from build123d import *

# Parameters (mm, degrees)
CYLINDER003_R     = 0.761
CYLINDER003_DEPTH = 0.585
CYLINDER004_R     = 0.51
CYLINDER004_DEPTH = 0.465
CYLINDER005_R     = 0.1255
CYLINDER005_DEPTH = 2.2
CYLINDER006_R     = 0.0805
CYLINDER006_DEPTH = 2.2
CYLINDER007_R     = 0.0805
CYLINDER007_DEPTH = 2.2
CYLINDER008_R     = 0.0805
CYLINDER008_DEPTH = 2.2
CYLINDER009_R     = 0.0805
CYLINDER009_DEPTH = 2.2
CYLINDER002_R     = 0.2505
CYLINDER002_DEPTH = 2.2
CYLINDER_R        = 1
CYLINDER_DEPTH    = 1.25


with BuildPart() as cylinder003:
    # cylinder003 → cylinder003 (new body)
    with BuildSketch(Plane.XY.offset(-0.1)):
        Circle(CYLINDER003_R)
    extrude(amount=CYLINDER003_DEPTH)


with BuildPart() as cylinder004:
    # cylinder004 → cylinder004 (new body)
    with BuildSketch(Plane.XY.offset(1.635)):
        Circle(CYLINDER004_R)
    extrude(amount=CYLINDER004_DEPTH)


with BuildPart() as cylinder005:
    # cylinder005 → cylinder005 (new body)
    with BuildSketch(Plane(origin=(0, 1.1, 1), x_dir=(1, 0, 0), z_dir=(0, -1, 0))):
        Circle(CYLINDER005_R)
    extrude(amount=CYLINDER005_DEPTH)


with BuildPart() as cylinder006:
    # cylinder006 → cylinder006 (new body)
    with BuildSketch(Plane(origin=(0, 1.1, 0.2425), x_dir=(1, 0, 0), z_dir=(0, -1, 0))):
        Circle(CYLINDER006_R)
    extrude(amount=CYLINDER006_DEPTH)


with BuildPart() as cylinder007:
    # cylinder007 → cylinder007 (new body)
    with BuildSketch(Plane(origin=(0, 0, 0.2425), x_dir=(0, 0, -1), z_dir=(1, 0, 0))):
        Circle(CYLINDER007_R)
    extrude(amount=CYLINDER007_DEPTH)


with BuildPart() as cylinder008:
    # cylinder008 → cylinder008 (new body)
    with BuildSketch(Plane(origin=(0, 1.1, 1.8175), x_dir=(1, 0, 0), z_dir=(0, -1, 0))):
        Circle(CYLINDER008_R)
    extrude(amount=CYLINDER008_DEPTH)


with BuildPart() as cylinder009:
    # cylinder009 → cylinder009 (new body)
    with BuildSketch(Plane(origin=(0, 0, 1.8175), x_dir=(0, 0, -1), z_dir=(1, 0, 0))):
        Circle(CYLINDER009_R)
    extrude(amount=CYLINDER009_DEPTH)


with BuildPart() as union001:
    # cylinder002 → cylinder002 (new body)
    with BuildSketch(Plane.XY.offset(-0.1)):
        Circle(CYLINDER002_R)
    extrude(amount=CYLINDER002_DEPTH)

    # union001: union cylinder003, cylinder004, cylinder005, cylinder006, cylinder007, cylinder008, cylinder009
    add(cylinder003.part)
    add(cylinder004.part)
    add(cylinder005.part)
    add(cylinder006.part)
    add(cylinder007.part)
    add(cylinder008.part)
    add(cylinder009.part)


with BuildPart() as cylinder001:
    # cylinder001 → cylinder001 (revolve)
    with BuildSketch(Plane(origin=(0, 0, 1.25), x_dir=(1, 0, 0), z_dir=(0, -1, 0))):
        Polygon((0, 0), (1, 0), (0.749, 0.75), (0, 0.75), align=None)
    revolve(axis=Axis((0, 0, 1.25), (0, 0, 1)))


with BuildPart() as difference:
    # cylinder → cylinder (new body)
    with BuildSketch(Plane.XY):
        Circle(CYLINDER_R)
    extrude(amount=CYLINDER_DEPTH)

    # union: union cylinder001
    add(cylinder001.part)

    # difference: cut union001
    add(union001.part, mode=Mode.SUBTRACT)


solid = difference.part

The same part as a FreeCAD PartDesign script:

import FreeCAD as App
import Part
import Sketcher
from FreeCAD import Vector

doc = App.newDocument("Part")
body = doc.addObject("PartDesign::Body", "Body")

# Sketch on XY plane
sketch1 = body.newObject("Sketcher::SketchObject", "Sketch")
sketch1.AttachmentSupport = (doc.getObject("XY_Plane"), [""])
sketch1.MapMode = "FlatFace"
sketch1.AttachmentOffset = App.Placement(Vector(0, 0, -0.1), App.Rotation())
sketch1.addGeometry(Part.Circle(Vector(0, 0, 0), Vector(0, 0, 1), 0.8), False)
sketch1.addConstraint(Sketcher.Constraint("Coincident", 0, 3, -1, 1))
sketch1.addConstraint(Sketcher.Constraint("Diameter", 0, 1.522))
pad1 = body.newObject("PartDesign::Pad", "Pad")
pad1.Profile = sketch1
pad1.Length = 0.585
body2 = doc.addObject("PartDesign::Body", "Body001")

# Sketch on XY plane
sketch2 = body2.newObject("Sketcher::SketchObject", "Sketch001")
sketch2.AttachmentSupport = (doc.getObject("XY_Plane001"), [""])
sketch2.MapMode = "FlatFace"
sketch2.AttachmentOffset = App.Placement(Vector(0, 0, 1.635), App.Rotation())
sketch2.addGeometry(Part.Circle(Vector(0, 0, 0), Vector(0, 0, 1), 0.5), False)
sketch2.addConstraint(Sketcher.Constraint("Coincident", 0, 3, -1, 1))
sketch2.addConstraint(Sketcher.Constraint("Diameter", 0, 1.02))
pad2 = body2.newObject("PartDesign::Pad", "Pad001")
pad2.Profile = sketch2
pad2.Length = 0.465
body3 = doc.addObject("PartDesign::Body", "Body002")

# Sketch on XZ plane
sketch3 = body3.newObject("Sketcher::SketchObject", "Sketch002")
sketch3.AttachmentSupport = (doc.getObject("XZ_Plane002"), [""])
sketch3.MapMode = "FlatFace"
sketch3.AttachmentOffset = App.Placement(Vector(0, 0, -1.1), App.Rotation())
sketch3.addGeometry(Part.Circle(Vector(0, 1, 0), Vector(0, 0, 1), 0.13), False)
sketch3.addConstraint(Sketcher.Constraint("PointOnObject", 0, 3, -2))
sketch3.addConstraint(Sketcher.Constraint("Diameter", 0, 0.251))
sketch3.addConstraint(Sketcher.Constraint("DistanceY", -1, 1, 0, 3, 1.0))
pad3 = body3.newObject("PartDesign::Pad", "Pad002")
pad3.Profile = sketch3
pad3.Length = 2.2
body4 = doc.addObject("PartDesign::Body", "Body003")

# Sketch on XZ plane
sketch4 = body4.newObject("Sketcher::SketchObject", "Sketch003")
sketch4.AttachmentSupport = (doc.getObject("XZ_Plane003"), [""])
sketch4.MapMode = "FlatFace"
sketch4.AttachmentOffset = App.Placement(Vector(0, 0, -1.1), App.Rotation())
sketch4.addGeometry(Part.Circle(Vector(0, 0.24, 0), Vector(0, 0, 1), 0.08), False)
sketch4.addConstraint(Sketcher.Constraint("PointOnObject", 0, 3, -2))
sketch4.addConstraint(Sketcher.Constraint("Diameter", 0, 0.161))
sketch4.addConstraint(Sketcher.Constraint("DistanceY", -1, 1, 0, 3, 0.2425))
pad4 = body4.newObject("PartDesign::Pad", "Pad003")
pad4.Profile = sketch4
pad4.Length = 2.2
body5 = doc.addObject("PartDesign::Body", "Body004")

# Sketch on YZ plane
sketch5 = body5.newObject("Sketcher::SketchObject", "Sketch004")
sketch5.AttachmentSupport = (doc.getObject("YZ_Plane004"), [""])
sketch5.MapMode = "FlatFace"
sketch5.addGeometry(Part.Circle(Vector(0, 0.24, 0), Vector(0, 0, 1), 0.08), False)
sketch5.addConstraint(Sketcher.Constraint("PointOnObject", 0, 3, -2))
sketch5.addConstraint(Sketcher.Constraint("Diameter", 0, 0.161))
sketch5.addConstraint(Sketcher.Constraint("DistanceY", -1, 1, 0, 3, 0.2425))
pad5 = body5.newObject("PartDesign::Pad", "Pad004")
pad5.Profile = sketch5
pad5.Length = 2.2
body6 = doc.addObject("PartDesign::Body", "Body005")

# Sketch on XZ plane
sketch6 = body6.newObject("Sketcher::SketchObject", "Sketch005")
sketch6.AttachmentSupport = (doc.getObject("XZ_Plane005"), [""])
sketch6.MapMode = "FlatFace"
sketch6.AttachmentOffset = App.Placement(Vector(0, 0, -1.1), App.Rotation())
sketch6.addGeometry(Part.Circle(Vector(0, 1.82, 0), Vector(0, 0, 1), 0.08), False)
sketch6.addConstraint(Sketcher.Constraint("PointOnObject", 0, 3, -2))
sketch6.addConstraint(Sketcher.Constraint("Diameter", 0, 0.161))
sketch6.addConstraint(Sketcher.Constraint("DistanceY", -1, 1, 0, 3, 1.8175))
pad6 = body6.newObject("PartDesign::Pad", "Pad005")
pad6.Profile = sketch6
pad6.Length = 2.2
body7 = doc.addObject("PartDesign::Body", "Body006")

# Sketch on YZ plane
sketch7 = body7.newObject("Sketcher::SketchObject", "Sketch006")
sketch7.AttachmentSupport = (doc.getObject("YZ_Plane006"), [""])
sketch7.MapMode = "FlatFace"
sketch7.addGeometry(Part.Circle(Vector(0, 1.82, 0), Vector(0, 0, 1), 0.08), False)
sketch7.addConstraint(Sketcher.Constraint("PointOnObject", 0, 3, -2))
sketch7.addConstraint(Sketcher.Constraint("Diameter", 0, 0.161))
sketch7.addConstraint(Sketcher.Constraint("DistanceY", -1, 1, 0, 3, 1.8175))
pad7 = body7.newObject("PartDesign::Pad", "Pad006")
pad7.Profile = sketch7
pad7.Length = 2.2
body8 = doc.addObject("PartDesign::Body", "Body007")

# Sketch on XY plane
sketch8 = body8.newObject("Sketcher::SketchObject", "Sketch007")
sketch8.AttachmentSupport = (doc.getObject("XY_Plane007"), [""])
sketch8.MapMode = "FlatFace"
sketch8.AttachmentOffset = App.Placement(Vector(0, 0, -0.1), App.Rotation())
sketch8.addGeometry(Part.Circle(Vector(0, 0, 0), Vector(0, 0, 1), 0.25), False)
sketch8.addConstraint(Sketcher.Constraint("Coincident", 0, 3, -1, 1))
sketch8.addConstraint(Sketcher.Constraint("Diameter", 0, 0.501))
pad8 = body8.newObject("PartDesign::Pad", "Pad007")
pad8.Profile = sketch8
pad8.Length = 2.2
doc.recompute()

boolean = body8.newObject("PartDesign::Boolean", "Boolean")
boolean.Type = "Fuse"
boolean.addObjects([body])
doc.recompute()

boolean2 = body8.newObject("PartDesign::Boolean", "Boolean001")
boolean2.Type = "Fuse"
boolean2.addObjects([body2])
doc.recompute()

boolean3 = body8.newObject("PartDesign::Boolean", "Boolean002")
boolean3.Type = "Fuse"
boolean3.addObjects([body3])
doc.recompute()

boolean4 = body8.newObject("PartDesign::Boolean", "Boolean003")
boolean4.Type = "Fuse"
boolean4.addObjects([body4])
doc.recompute()

boolean5 = body8.newObject("PartDesign::Boolean", "Boolean004")
boolean5.Type = "Fuse"
boolean5.addObjects([body5])
doc.recompute()

boolean6 = body8.newObject("PartDesign::Boolean", "Boolean005")
boolean6.Type = "Fuse"
boolean6.addObjects([body6])
doc.recompute()

boolean7 = body8.newObject("PartDesign::Boolean", "Boolean006")
boolean7.Type = "Fuse"
boolean7.addObjects([body7])
body9 = doc.addObject("PartDesign::Body", "Body008")

# Sketch on XZ plane
sketch9 = body9.newObject("Sketcher::SketchObject", "Sketch008")
sketch9.AttachmentSupport = (doc.getObject("XZ_Plane008"), [""])
sketch9.MapMode = "FlatFace"
sketch9.addGeometry(Part.LineSegment(Vector(0, 1.2, 0), Vector(1, 1.2, 0)), False)
sketch9.addGeometry(Part.LineSegment(Vector(1, 1.2, 0), Vector(0.7, 2, 0)), False)
sketch9.addGeometry(Part.LineSegment(Vector(0.7, 2, 0), Vector(0, 2, 0)), False)
sketch9.addGeometry(Part.LineSegment(Vector(0, 2, 0), Vector(0, 1.2, 0)), False)
sketch9.addConstraint(Sketcher.Constraint("Coincident", 0, 2, 1, 1))
sketch9.addConstraint(Sketcher.Constraint("Coincident", 1, 2, 2, 1))
sketch9.addConstraint(Sketcher.Constraint("Coincident", 2, 2, 3, 1))
sketch9.addConstraint(Sketcher.Constraint("Coincident", 3, 2, 0, 1))
sketch9.addConstraint(Sketcher.Constraint("Horizontal", 0))
sketch9.addConstraint(Sketcher.Constraint("Horizontal", 2))
sketch9.addConstraint(Sketcher.Constraint("Vertical", 3))
sketch9.addConstraint(Sketcher.Constraint("PointOnObject", 2, 2, -2))
sketch9.addConstraint(Sketcher.Constraint("DistanceX", 0, 1, 0, 2, 1.0))
sketch9.addConstraint(Sketcher.Constraint("DistanceY", -1, 1, 1, 2, 2.0))
sketch9.addConstraint(Sketcher.Constraint("DistanceY", 3, 2, 3, 1, 0.75))
sketch9.addConstraint(Sketcher.Constraint("DistanceX", 2, 2, 2, 1, 0.749))
revolution = body9.newObject("PartDesign::Revolution", "Revolution")
revolution.Profile = sketch9
revolution.ReferenceAxis = (sketch9, ["V_Axis"])
revolution.Angle = 360
body10 = doc.addObject("PartDesign::Body", "Body009")

# Sketch on XY plane
sketch10 = body10.newObject("Sketcher::SketchObject", "Sketch009")
sketch10.AttachmentSupport = (doc.getObject("XY_Plane009"), [""])
sketch10.MapMode = "FlatFace"
sketch10.addGeometry(Part.Circle(Vector(0, 0, 0), Vector(0, 0, 1), 1), False)
sketch10.addConstraint(Sketcher.Constraint("Coincident", 0, 3, -1, 1))
sketch10.addConstraint(Sketcher.Constraint("Diameter", 0, 2.0))
pad9 = body10.newObject("PartDesign::Pad", "Pad008")
pad9.Profile = sketch10
pad9.Length = 1.25
doc.recompute()

boolean8 = body10.newObject("PartDesign::Boolean", "Boolean007")
boolean8.Type = "Fuse"
boolean8.addObjects([body9])
doc.recompute()

boolean9 = body10.newObject("PartDesign::Boolean", "Boolean008")
boolean9.Type = "Cut"
boolean9.addObjects([body8])

doc.recompute()
